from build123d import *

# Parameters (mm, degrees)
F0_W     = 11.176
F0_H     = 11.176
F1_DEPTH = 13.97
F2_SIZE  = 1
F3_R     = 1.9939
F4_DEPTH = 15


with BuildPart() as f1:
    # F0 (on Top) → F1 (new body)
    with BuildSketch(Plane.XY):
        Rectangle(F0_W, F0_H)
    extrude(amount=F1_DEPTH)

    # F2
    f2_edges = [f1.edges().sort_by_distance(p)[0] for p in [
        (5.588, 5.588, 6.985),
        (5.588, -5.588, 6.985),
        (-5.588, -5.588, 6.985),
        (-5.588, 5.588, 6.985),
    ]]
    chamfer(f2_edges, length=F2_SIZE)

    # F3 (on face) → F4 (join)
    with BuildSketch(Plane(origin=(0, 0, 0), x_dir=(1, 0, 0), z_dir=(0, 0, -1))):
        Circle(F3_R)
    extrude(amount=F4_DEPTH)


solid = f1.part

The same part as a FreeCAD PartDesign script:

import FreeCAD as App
import Part
import Sketcher

V = App.Vector
Q = App.Units.Quantity


def edges_at(feature, points):
    """Names of the edges that pass closest to the given points."""
    edges = feature.Shape.Edges
    near = lambda p: min(range(len(edges)), key=lambda i: edges[i].distToShape(Part.Vertex(*p))[0])
    return sorted({f"Edge{near(p) + 1}" for p in points})


def add_polygon(sketch, points):
    """Adds a closed chain of lines whose ends are joined by coincident constraints."""
    first, n = sketch.GeometryCount, len(points)
    for a, b in zip(points, points[1:] + points[:1]):
        sketch.addGeometry(Part.LineSegment(App.Vector(*a, 0), App.Vector(*b, 0)), False)
    for i in range(n):
        sketch.addConstraint(Sketcher.Constraint("Coincident", first + i, 2, first + (i + 1) % n, 1))

doc = App.newDocument("Part")
body = doc.addObject("PartDesign::Body", "Body")

# Sketch on XY plane
sketch1 = doc.addObject("Sketcher::SketchObject", "Sketch")
body.addObject(sketch1)
sketch1.AttachmentSupport = (doc.XY_Plane, [""])
sketch1.MapMode = "FlatFace"
add_polygon(sketch1, [(-5.588, 5.588), (-5.588, -5.588), (5.588, -5.588), (5.588, 5.588)])  # lines 0-3
sketch1.addConstraint([
    Sketcher.Constraint("Vertical", 0),
    Sketcher.Constraint("Horizontal", 1),
    Sketcher.Constraint("Vertical", 2),
    Sketcher.Constraint("Horizontal", 3),
    Sketcher.Constraint("Symmetric", 0, 2, 2, 2, -1, 1),
    Sketcher.Constraint("Equal", 3, 0),
    Sketcher.Constraint("DistanceX", 1, 1, 1, 2, Q("0.44 in")),
])
pad1 = doc.addObject("PartDesign::Pad", "Pad")
body.addObject(pad1)
pad1.Profile = sketch1
pad1.Length = Q("0.55 in")
doc.recompute()

chamfer = doc.addObject("PartDesign::Chamfer", "Chamfer")
body.addObject(chamfer)
chamfer.Base = (pad1, edges_at(pad1, [
    (5.588, 5.588, 6.985),
    (5.588, -5.588, 6.985),
    (-5.588, -5.588, 6.985),
    (-5.588, 5.588, 6.985),
]))
chamfer.Size = 1

# Sketch on XY plane
sketch2 = doc.addObject("Sketcher::SketchObject", "Sketch001")
body.addObject(sketch2)
sketch2.AttachmentSupport = (doc.XY_Plane, [""])
sketch2.MapMode = "FlatFace"
sketch2.addGeometry(Part.Circle(V(0, 0, 0), V(0, 0, 1), 1.9939), False)
sketch2.addConstraint([
    Sketcher.Constraint("Coincident", 0, 3, -1, 1),
    Sketcher.Constraint("Diameter", 0, Q("0.157 in")),
])
pad2 = doc.addObject("PartDesign::Pad", "Pad001")
body.addObject(pad2)
pad2.Profile = sketch2
pad2.Length = 15
pad2.Reversed = True

doc.recompute()
